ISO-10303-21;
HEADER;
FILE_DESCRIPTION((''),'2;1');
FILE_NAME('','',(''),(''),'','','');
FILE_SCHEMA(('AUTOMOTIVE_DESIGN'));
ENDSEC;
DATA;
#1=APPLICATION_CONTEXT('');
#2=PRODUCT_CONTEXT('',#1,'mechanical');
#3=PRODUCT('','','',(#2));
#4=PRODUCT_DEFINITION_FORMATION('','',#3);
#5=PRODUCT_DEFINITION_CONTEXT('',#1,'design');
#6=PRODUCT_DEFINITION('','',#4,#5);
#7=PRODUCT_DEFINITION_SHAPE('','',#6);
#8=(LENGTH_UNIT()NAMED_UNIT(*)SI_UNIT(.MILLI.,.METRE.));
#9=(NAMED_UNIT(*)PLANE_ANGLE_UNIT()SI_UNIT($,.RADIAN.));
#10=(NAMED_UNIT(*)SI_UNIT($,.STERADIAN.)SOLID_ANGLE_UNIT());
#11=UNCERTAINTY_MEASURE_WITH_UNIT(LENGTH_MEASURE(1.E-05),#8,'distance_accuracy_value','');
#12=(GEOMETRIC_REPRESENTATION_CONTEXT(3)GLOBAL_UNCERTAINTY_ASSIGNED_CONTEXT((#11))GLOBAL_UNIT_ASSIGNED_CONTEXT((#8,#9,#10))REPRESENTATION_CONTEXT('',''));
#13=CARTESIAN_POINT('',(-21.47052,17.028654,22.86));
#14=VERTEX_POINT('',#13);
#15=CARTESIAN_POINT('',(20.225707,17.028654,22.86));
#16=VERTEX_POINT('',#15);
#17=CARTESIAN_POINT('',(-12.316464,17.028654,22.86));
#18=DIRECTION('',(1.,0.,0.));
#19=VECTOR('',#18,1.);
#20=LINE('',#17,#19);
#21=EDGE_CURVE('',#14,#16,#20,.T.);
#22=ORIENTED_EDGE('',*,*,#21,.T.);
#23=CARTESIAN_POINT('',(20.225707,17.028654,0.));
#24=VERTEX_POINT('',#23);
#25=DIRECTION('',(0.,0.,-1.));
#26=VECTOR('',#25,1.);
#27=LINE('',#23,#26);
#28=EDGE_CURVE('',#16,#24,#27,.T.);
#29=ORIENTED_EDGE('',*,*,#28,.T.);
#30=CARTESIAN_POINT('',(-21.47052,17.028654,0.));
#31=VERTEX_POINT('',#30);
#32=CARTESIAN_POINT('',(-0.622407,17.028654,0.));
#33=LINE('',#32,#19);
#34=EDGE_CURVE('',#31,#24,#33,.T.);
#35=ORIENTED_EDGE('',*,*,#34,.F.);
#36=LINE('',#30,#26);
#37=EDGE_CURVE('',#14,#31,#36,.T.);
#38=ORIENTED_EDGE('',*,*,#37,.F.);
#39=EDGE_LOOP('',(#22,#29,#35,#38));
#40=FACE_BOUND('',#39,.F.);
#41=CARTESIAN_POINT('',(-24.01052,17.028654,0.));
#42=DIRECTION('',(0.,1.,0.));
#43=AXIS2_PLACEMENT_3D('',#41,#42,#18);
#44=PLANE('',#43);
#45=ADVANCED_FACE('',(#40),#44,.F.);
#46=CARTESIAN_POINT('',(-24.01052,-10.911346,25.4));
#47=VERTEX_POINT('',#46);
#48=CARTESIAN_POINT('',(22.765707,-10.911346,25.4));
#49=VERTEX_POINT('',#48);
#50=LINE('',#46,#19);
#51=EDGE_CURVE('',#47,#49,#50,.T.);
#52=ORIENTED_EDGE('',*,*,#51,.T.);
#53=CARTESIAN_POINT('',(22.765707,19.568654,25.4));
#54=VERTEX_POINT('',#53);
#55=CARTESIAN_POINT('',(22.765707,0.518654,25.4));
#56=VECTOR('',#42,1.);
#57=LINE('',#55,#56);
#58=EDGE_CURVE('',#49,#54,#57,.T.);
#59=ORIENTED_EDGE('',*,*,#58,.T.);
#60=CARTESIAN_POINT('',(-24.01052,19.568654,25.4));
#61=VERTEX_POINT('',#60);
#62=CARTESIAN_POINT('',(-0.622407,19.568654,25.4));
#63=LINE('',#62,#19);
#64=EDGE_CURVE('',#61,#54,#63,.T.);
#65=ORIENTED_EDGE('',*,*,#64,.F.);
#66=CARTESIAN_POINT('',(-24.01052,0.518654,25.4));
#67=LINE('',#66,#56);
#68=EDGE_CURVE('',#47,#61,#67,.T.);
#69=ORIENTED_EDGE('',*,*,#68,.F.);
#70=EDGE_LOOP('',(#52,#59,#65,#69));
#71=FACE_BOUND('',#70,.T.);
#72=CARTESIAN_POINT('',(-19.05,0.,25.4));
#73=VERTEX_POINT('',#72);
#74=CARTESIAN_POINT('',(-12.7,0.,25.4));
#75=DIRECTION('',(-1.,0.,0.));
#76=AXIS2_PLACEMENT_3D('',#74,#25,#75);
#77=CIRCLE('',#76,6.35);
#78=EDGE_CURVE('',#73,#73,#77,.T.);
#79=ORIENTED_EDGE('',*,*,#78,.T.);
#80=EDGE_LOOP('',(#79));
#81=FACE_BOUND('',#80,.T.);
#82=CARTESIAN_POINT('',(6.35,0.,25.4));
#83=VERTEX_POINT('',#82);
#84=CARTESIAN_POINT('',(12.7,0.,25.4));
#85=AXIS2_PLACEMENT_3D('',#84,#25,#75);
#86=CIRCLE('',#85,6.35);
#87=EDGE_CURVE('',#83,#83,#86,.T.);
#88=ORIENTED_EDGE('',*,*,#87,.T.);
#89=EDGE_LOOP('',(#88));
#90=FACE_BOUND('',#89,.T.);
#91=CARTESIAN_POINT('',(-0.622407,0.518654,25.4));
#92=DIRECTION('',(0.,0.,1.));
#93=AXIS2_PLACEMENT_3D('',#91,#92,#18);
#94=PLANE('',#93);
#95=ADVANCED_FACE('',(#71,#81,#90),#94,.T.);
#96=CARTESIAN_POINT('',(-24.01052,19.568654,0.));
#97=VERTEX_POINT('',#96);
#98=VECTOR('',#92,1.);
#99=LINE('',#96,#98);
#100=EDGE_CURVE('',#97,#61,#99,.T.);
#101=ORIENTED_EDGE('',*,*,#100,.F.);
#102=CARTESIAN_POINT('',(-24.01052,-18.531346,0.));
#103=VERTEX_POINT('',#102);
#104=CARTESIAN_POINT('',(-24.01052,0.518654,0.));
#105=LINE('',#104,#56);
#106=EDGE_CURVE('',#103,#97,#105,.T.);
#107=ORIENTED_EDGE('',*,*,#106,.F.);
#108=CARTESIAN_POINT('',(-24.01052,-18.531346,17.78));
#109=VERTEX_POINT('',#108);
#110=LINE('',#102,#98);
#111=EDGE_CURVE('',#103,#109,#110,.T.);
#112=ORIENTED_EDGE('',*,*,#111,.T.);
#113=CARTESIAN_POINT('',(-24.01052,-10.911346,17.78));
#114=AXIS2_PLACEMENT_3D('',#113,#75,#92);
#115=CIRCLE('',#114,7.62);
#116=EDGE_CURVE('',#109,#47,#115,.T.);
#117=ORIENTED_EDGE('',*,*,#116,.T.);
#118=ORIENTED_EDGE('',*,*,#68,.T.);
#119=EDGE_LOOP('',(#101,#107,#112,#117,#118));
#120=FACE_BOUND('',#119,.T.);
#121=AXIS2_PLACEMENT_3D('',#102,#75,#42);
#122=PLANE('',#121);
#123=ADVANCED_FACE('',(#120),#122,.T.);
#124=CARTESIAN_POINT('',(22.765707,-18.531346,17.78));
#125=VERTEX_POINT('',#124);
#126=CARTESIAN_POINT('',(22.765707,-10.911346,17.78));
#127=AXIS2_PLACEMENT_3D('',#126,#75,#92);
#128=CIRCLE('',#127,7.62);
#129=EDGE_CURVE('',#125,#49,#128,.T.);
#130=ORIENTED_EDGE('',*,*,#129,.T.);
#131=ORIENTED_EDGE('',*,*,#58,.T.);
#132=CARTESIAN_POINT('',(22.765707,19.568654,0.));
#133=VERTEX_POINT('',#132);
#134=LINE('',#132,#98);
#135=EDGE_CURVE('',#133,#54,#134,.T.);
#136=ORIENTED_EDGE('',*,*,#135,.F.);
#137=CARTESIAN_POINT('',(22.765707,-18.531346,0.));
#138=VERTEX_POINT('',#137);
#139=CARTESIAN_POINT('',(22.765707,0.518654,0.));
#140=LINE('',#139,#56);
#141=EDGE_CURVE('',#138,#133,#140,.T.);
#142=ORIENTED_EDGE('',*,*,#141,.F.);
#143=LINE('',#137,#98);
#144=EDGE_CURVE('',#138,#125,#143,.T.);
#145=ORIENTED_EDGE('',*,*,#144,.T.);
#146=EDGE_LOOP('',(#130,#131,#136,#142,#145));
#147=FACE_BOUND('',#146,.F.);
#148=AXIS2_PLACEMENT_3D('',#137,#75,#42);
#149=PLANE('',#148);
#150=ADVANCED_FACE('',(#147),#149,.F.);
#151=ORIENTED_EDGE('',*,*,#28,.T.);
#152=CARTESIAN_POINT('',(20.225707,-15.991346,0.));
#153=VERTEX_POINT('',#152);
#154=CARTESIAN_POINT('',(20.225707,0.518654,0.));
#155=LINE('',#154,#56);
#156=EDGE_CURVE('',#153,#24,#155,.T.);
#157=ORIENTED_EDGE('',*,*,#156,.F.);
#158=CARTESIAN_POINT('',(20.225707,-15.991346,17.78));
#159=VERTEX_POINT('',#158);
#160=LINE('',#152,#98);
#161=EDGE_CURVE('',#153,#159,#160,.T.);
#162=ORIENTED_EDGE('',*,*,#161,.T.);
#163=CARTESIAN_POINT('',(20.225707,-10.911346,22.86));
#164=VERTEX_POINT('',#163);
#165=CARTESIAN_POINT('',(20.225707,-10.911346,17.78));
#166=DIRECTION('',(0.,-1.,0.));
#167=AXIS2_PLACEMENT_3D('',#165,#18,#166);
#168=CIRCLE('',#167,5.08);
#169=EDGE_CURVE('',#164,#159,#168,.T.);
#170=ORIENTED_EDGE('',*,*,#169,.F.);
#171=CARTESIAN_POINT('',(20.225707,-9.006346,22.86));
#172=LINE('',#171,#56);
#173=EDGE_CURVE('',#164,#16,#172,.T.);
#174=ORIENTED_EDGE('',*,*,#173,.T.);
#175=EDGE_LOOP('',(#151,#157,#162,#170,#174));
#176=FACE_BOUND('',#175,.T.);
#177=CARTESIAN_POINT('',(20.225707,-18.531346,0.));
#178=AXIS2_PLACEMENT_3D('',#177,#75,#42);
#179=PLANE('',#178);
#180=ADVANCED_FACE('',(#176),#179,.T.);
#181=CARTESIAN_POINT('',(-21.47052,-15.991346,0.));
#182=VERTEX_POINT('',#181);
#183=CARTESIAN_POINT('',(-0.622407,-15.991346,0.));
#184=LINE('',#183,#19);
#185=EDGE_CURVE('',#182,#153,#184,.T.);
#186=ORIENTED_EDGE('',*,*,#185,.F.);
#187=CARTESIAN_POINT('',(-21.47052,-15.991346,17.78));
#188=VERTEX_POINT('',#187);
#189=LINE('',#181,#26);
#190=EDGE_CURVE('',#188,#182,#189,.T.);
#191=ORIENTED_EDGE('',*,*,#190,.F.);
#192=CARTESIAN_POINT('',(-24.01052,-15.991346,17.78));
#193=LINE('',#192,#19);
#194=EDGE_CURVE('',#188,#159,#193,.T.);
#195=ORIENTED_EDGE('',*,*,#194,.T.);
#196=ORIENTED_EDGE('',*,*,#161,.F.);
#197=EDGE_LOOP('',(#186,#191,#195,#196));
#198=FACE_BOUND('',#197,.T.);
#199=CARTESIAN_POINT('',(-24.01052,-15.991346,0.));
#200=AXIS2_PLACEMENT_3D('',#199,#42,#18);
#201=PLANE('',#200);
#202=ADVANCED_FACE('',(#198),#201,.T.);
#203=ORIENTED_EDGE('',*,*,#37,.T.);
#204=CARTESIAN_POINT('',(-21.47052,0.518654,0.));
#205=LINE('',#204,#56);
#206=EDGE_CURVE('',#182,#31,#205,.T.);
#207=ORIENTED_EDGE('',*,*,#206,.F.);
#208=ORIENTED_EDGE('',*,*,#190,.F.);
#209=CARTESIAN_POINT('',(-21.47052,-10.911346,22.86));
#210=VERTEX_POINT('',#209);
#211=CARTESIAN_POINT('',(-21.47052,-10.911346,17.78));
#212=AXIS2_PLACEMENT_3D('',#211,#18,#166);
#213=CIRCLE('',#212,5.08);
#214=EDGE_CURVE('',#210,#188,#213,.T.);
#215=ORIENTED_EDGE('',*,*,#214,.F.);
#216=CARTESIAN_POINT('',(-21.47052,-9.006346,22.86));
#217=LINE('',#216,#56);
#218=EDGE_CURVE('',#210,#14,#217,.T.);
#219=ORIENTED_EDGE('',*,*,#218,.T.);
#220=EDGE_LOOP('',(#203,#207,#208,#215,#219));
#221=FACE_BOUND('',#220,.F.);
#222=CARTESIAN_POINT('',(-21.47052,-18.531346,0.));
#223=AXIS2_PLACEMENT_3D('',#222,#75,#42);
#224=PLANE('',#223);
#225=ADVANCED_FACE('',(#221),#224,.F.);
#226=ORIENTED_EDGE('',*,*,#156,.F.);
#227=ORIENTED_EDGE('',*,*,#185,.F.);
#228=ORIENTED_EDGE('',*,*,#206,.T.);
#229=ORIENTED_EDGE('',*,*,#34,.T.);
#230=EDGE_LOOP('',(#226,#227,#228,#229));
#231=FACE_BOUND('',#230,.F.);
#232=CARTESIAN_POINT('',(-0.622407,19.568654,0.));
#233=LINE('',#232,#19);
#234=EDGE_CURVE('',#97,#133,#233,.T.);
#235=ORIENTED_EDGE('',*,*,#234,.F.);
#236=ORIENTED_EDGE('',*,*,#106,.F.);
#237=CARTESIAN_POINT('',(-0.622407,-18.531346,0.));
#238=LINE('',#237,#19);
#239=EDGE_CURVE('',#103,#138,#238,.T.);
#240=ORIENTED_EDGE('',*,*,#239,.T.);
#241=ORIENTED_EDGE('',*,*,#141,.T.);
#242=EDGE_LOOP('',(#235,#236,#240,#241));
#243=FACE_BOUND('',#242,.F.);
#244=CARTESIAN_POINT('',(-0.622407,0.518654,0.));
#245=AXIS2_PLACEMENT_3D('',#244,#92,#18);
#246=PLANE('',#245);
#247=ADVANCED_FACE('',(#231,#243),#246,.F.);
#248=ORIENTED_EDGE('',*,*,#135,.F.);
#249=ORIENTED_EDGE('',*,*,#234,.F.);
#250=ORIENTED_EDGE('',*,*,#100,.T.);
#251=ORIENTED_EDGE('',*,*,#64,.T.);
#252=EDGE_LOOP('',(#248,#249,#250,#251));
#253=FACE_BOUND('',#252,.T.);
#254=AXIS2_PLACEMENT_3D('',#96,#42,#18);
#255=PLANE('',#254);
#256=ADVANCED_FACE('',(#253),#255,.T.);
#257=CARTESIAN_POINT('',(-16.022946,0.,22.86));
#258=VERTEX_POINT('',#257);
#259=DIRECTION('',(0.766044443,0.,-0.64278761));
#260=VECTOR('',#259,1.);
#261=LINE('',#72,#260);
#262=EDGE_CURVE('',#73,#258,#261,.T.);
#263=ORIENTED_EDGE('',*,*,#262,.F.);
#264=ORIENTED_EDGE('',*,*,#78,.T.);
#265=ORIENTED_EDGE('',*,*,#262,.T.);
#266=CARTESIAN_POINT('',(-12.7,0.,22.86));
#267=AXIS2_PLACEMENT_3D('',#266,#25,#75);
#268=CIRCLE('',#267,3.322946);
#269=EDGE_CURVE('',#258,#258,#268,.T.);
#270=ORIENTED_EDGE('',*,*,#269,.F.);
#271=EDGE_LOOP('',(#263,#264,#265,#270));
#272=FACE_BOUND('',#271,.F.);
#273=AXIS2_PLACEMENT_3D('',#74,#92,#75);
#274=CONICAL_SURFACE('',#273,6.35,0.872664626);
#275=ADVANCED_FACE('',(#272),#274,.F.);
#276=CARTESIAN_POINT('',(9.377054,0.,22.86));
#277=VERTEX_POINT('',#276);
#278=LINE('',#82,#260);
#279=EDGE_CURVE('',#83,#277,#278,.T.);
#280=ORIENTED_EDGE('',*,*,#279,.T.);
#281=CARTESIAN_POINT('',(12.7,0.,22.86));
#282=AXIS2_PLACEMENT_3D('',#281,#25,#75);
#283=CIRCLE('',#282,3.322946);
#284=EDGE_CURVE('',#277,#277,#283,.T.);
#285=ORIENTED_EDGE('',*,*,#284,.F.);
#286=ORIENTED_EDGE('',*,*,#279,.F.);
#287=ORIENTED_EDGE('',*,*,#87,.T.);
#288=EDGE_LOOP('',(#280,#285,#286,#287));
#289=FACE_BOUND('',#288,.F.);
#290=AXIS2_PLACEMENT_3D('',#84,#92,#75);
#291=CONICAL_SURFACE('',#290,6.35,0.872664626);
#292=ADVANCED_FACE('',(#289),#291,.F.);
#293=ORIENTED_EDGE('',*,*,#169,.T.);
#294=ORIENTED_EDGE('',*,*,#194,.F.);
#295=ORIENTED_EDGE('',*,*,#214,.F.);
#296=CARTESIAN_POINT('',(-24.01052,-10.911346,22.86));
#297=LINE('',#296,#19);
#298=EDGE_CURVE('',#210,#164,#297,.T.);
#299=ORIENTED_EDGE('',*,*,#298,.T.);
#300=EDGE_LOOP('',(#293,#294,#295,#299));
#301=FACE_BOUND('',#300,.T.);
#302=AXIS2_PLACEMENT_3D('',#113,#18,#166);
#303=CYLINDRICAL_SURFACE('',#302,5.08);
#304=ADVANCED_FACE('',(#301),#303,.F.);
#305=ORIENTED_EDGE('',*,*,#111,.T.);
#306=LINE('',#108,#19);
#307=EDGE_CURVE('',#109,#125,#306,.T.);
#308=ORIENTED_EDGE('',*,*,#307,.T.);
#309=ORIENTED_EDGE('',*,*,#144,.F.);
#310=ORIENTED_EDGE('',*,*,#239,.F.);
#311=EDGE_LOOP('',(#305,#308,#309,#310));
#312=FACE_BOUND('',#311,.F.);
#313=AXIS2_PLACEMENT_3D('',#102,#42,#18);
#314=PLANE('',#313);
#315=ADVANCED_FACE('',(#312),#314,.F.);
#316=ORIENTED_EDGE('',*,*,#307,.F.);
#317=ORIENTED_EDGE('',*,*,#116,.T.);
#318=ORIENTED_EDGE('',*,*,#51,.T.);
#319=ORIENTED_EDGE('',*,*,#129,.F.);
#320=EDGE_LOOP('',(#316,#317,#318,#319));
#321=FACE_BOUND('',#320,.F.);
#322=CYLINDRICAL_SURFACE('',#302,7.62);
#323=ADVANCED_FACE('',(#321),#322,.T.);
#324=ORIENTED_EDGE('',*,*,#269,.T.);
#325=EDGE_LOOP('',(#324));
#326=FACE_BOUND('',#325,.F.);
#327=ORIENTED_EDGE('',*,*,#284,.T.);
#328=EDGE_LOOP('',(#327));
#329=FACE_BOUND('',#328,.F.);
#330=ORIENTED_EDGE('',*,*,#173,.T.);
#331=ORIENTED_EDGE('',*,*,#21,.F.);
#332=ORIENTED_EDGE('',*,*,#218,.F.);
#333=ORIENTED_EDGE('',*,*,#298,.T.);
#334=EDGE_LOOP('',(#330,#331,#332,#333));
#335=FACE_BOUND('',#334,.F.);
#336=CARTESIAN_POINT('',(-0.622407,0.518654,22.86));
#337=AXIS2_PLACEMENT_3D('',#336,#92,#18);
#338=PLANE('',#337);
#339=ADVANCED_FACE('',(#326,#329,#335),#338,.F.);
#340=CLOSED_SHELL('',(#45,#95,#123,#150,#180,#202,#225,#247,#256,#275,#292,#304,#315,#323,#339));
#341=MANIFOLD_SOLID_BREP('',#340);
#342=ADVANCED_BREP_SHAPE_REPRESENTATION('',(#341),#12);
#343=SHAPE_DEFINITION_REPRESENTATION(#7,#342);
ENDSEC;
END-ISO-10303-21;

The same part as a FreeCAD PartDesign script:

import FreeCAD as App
import Part
import Sketcher
Q = App.Units.Quantity


def edges_at(feature, points):
    """Names of the edges that pass closest to the given points."""
    edges = feature.Shape.Edges
    near = lambda p: min(range(len(edges)), key=lambda i: edges[i].distToShape(Part.Vertex(*p))[0])
    return sorted({f"Edge{near(p) + 1}" for p in points})


def faces_at(feature, points):
    """Names of the faces that lie closest to the given points."""
    faces = feature.Shape.Faces
    near = lambda p: min(range(len(faces)), key=lambda i: faces[i].distToShape(Part.Vertex(*p))[0])
    return sorted({f"Face{near(p) + 1}" for p in points})

doc = App.newDocument("Part")
params = doc.addObject("Spreadsheet::Sheet", "Params")
for row, (alias, value) in enumerate([
    ("sketch1_height", "1.5 in"),
    ("pad1_length", "1 in"),
    ("fillet_radius", "0.3 in"),
    ("thickness_wall", "0.1 in"),
    ("sketch2_diameter", "0.25 in"),
    ("hole_diameter", "0.25 in"),
    ("hole_csink_diameter", "0.5 in"),
], start=1):
    params.set(f"A{row}", alias)
    params.set(f"B{row}", "=" + value)
    params.setAlias(f"B{row}", alias)

body = doc.addObject("PartDesign::Body", "Body")

sketch1 = body.newObject("Sketcher::SketchObject", "Sketch")
sketch1.AttachmentSupport = (doc.getObject("XY_Plane"), [""])
sketch1.MapMode = "FlatFace"
sketch1.addGeometry([
    Part.LineSegment(App.Vector(-24.01052, 19.568654, 0), App.Vector(-24.01052, -18.531346, 0)),
    Part.LineSegment(App.Vector(-24.01052, -18.531346, 0), App.Vector(22.765707, -18.531346, 0)),
    Part.LineSegment(App.Vector(22.765707, -18.531346, 0), App.Vector(22.765707, 19.568654, 0)),
    Part.LineSegment(App.Vector(22.765707, 19.568654, 0), App.Vector(-24.01052, 19.568654, 0)),
], False)
sketch1.addConstraint([
    Sketcher.Constraint("Coincident", 0, 2, 1, 1),
    Sketcher.Constraint("Coincident", 1, 2, 2, 1),
    Sketcher.Constraint("Coincident", 2, 2, 3, 1),
    Sketcher.Constraint("Coincident", 3, 2, 0, 1),
    Sketcher.Constraint("Vertical", 0),
    Sketcher.Constraint("Horizontal", 1),
    Sketcher.Constraint("Vertical", 2),
    Sketcher.Constraint("Horizontal", 3),
    Sketcher.Constraint("DistanceY", 0, 2, 0, 1, Q("1.5 in")),
    Sketcher.Constraint("DistanceX", 1, 1, 1, 2, Q("46.776227 mm")),
    Sketcher.Constraint("DistanceX", 0, 2, -1, 1, Q("24.01052 mm")),
    Sketcher.Constraint("DistanceY", 0, 2, -1, 1, Q("18.531346 mm")),
])
sketch1.setExpression("Constraints[8]", "Params.sketch1_height")
pad1 = body.newObject("PartDesign::Pad", "Pad")
pad1.Profile = sketch1
pad1.setExpression("Length", "Params.pad1_length")
doc.recompute()

fillet = body.newObject("PartDesign::Fillet", "Fillet")
fillet.Base = (pad1, edges_at(pad1, [(-0.622, -18.531, 25.4)]))
fillet.setExpression("Radius", "Params.fillet_radius")
doc.recompute()

thickness = body.newObject("PartDesign::Thickness", "Thickness")
thickness.Base = (fillet, faces_at(fillet, [(-0.622, 0.519, 0)]))
thickness.setExpression("Value", "Params.thickness_wall")
thickness.Reversed = True
thickness.Join = "Arc"

sketch2 = body.newObject("Sketcher::SketchObject", "Sketch001")
sketch2.AttachmentSupport = (doc.getObject("XY_Plane"), [""])
sketch2.MapMode = "FlatFace"
sketch2.AttachmentOffset = App.Placement(App.Vector(0, 0, 1 * 25.4), App.Rotation())
sketch2.addGeometry([
    Part.Circle(App.Vector(-12.7, 0, 0), App.Vector(0, 0, 1), 3.175),
    Part.Circle(App.Vector(12.7, 0, 0), App.Vector(0, 0, 1), 3.175),
], False)
sketch2.addConstraint([
    Sketcher.Constraint("Equal", 0, 1),
    Sketcher.Constraint("Symmetric", 0, 3, 1, 3, -1, 1),
    Sketcher.Constraint("PointOnObject", 0, 3, -1),
    Sketcher.Constraint("Diameter", 0, Q("0.25 in")),
    Sketcher.Constraint("DistanceX", 0, 3, 1, 3, Q("1 in")),
])
sketch2.setExpression("Constraints[3]", "Params.sketch2_diameter")
doc.recompute()
hole = body.newObject("PartDesign::Hole", "Hole")
hole.Profile = sketch2
hole.ThreadType = "None"
hole.setExpression("Diameter", "Params.hole_diameter")
hole.DepthType = "ThroughAll"
hole.HoleCutType = "Countersink"
hole.setExpression("HoleCutDiameter", "Params.hole_csink_diameter")
hole.HoleCutCountersinkAngle = 100

doc.recompute()
